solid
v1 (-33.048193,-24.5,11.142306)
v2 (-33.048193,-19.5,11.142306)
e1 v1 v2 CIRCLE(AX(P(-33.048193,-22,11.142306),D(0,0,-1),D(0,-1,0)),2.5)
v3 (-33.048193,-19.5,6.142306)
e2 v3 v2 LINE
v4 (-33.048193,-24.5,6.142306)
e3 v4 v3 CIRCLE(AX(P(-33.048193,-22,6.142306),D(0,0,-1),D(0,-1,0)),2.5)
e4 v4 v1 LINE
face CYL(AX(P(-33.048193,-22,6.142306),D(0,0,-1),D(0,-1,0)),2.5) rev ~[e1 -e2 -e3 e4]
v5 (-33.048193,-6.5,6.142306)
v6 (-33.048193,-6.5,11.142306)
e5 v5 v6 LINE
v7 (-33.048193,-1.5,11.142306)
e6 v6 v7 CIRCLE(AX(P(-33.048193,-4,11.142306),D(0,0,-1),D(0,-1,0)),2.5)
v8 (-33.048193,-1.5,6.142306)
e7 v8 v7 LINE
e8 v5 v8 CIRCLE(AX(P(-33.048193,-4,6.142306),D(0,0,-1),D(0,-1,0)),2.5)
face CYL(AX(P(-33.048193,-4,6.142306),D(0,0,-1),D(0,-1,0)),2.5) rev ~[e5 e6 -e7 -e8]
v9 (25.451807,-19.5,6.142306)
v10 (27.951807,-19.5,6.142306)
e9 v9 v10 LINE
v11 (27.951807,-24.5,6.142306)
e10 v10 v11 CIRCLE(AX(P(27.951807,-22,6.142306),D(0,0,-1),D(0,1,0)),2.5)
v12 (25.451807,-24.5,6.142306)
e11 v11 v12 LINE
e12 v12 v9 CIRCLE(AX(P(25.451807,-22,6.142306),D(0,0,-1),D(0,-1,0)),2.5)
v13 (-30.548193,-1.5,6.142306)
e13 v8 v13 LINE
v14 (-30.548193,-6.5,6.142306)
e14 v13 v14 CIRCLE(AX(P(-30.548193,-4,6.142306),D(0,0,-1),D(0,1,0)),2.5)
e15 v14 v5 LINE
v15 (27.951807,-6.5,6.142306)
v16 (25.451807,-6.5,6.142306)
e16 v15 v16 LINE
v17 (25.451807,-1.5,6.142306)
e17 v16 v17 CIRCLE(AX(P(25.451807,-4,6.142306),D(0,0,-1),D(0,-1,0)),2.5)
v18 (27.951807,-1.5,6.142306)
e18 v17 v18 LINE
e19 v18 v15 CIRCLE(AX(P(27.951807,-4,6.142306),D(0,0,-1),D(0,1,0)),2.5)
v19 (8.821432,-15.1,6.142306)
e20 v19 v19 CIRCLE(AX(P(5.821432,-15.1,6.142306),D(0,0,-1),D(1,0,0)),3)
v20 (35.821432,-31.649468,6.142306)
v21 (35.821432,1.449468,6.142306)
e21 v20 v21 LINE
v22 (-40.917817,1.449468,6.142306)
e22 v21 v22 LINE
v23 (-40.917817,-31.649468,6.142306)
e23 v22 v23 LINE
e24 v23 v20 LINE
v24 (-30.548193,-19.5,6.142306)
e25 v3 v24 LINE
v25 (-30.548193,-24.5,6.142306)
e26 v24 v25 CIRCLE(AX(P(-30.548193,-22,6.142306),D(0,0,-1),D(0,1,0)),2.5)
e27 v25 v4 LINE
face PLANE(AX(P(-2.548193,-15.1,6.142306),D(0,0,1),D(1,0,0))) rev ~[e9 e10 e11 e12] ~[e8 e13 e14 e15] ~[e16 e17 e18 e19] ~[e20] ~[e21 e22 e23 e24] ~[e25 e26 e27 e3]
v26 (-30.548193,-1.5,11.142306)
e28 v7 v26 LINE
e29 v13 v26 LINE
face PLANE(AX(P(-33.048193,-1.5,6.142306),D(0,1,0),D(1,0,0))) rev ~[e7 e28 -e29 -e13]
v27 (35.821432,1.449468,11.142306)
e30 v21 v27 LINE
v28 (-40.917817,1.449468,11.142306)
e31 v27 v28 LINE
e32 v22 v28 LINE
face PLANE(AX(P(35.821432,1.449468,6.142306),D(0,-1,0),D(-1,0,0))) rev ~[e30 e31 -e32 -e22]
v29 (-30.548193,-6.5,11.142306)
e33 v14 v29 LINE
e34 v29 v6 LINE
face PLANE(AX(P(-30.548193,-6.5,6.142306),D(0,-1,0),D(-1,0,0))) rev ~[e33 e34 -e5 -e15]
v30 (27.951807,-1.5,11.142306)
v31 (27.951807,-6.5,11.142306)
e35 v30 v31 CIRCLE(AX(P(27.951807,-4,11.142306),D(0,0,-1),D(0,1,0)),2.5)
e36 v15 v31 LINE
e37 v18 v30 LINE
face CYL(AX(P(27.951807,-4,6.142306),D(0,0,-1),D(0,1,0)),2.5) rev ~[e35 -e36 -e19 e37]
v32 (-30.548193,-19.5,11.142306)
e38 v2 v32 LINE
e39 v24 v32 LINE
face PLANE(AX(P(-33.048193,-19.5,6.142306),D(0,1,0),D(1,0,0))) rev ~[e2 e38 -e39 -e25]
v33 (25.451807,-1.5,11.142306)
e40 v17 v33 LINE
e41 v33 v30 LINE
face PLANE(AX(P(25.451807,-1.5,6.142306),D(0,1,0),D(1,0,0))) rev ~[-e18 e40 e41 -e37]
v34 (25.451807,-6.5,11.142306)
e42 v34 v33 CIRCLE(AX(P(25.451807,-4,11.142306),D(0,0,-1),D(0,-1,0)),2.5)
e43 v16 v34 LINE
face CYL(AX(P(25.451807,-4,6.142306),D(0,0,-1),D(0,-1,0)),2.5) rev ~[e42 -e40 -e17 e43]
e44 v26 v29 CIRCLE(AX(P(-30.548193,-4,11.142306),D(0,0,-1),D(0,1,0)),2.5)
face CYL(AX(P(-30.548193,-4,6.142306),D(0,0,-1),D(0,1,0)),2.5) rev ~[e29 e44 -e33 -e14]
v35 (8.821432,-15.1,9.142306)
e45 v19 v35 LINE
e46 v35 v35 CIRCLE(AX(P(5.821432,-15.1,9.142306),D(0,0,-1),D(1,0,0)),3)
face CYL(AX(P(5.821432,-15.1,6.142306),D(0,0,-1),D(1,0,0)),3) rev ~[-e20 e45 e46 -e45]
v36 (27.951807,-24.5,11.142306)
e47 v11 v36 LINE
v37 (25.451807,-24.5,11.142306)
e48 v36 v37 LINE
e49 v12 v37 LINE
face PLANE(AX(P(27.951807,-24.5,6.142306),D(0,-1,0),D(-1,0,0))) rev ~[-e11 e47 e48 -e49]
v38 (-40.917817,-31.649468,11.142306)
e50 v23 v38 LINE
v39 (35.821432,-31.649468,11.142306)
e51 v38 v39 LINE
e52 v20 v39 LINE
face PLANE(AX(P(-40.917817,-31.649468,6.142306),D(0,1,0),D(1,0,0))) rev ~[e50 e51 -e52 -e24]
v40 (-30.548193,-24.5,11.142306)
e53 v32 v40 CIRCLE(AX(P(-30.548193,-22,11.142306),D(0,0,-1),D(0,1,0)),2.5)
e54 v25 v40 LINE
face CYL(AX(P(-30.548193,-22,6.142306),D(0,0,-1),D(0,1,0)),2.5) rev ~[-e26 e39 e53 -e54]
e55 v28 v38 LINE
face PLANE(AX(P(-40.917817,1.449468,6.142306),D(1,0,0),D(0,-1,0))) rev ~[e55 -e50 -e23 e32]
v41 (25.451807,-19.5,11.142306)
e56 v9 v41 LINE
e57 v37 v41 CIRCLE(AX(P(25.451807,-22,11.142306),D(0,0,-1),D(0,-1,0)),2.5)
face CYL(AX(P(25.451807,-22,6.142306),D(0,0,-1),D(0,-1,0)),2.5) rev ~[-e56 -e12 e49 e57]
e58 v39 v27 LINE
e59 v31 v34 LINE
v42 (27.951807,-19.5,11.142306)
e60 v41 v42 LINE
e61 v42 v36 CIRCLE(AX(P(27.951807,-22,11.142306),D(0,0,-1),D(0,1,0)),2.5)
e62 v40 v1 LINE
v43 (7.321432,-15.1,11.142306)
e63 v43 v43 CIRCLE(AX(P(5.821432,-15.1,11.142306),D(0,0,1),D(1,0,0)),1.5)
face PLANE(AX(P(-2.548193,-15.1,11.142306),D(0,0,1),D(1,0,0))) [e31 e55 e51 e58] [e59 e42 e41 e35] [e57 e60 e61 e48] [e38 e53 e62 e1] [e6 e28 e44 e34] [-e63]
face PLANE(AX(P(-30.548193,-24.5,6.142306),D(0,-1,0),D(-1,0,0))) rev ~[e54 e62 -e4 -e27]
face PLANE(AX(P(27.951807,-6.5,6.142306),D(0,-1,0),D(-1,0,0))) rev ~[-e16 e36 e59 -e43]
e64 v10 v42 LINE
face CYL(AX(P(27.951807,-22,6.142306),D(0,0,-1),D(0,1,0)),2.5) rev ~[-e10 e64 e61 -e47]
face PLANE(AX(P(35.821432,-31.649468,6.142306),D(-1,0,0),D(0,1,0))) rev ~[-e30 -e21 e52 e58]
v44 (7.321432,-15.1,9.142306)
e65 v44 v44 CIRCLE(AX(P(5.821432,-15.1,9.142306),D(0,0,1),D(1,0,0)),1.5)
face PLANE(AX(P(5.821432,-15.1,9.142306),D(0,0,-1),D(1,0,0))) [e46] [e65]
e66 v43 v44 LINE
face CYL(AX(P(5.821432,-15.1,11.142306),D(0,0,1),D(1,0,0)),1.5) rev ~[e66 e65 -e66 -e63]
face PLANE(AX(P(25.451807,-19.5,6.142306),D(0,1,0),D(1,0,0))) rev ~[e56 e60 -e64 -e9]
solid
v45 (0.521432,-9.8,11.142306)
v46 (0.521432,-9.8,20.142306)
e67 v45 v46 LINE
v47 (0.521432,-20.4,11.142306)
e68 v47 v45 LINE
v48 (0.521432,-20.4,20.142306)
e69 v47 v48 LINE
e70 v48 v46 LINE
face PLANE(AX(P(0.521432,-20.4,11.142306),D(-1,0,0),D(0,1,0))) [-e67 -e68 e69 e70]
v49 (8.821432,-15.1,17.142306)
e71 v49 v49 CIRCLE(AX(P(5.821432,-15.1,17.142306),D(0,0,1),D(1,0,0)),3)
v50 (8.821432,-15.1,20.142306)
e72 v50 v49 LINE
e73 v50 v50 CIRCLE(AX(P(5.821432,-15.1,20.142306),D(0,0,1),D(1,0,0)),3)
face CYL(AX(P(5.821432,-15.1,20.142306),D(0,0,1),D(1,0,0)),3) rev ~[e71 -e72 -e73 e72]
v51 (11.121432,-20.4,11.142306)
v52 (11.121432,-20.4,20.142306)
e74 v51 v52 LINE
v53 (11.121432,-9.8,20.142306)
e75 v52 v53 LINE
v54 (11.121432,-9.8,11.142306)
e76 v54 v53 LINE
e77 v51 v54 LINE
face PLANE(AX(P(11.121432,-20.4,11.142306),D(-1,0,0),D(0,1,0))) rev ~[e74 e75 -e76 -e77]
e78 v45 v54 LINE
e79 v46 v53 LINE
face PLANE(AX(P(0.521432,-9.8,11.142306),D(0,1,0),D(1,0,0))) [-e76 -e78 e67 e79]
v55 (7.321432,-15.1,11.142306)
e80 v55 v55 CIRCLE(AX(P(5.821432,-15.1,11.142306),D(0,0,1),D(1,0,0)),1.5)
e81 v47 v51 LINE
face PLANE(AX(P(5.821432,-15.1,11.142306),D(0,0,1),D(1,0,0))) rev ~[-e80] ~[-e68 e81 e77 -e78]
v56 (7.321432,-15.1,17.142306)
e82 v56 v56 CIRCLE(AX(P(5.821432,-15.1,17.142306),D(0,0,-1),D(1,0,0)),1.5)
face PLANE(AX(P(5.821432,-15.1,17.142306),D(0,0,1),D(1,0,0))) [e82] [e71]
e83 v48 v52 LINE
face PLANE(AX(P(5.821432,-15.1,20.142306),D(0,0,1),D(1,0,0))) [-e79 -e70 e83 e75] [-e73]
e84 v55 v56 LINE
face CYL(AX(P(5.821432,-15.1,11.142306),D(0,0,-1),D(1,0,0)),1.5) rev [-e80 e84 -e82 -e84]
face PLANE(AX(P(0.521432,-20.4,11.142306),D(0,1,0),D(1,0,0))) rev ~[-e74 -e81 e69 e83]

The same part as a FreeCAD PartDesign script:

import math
import FreeCAD as App
import Part
import Sketcher
Q = App.Units.Quantity


def add_polygon(sketch, points):
    """Adds a closed chain of lines whose ends are joined by coincident constraints."""
    first, n = sketch.GeometryCount, len(points)
    for a, b in zip(points, points[1:] + points[:1]):
        sketch.addGeometry(Part.LineSegment(App.Vector(*a, 0), App.Vector(*b, 0)), False)
    for i in range(n):
        sketch.addConstraint(Sketcher.Constraint("Coincident", first + i, 2, first + (i + 1) % n, 1))

doc = App.newDocument("Part")
params = doc.addObject("Spreadsheet::Sheet", "Params")
for row, (alias, value) in enumerate([
    ("sketch1_diameter", "8 mm"),
    ("sketch1_width", "34 mm"),
    ("sketch1_height", "22 mm"),
    ("pad1_length", "30.2 mm"),
    ("sketch2_diameter", "8 mm"),
    ("sketch2_width", "34 mm"),
    ("sketch2_height", "22 mm"),
    ("pad2_length", "30.2 mm"),
    ("sketch3_radius", "2.5 mm"),
    ("sketch3_width", "2.5 mm"),
    ("pad3_length", "5 mm"),
    ("sketch4_diameter", "3 mm"),
    ("pocket1_length", "25 mm"),
    ("sketch5_diameter", "6 mm"),
    ("pocket2_length", "3 mm"),
    ("sketch6_diameter", "3 mm"),
    ("sketch6_width", "10.6 mm"),
    ("pad4_length", "9 mm"),
    ("sketch7_diameter", "6 mm"),
    ("pocket3_length", "3 mm"),
], start=1):
    params.set(f"A{row}", alias)
    params.set(f"B{row}", "=" + value)
    params.setAlias(f"B{row}", alias)

body = doc.addObject("PartDesign::Body", "Body")

sketch1 = body.newObject("Sketcher::SketchObject", "Sketch")
sketch1.AttachmentSupport = (doc.getObject("XZ_Plane"), [""])
sketch1.MapMode = "FlatFace"
add_polygon(sketch1, [(-36.1, 6.1), (-36.1, -15.9), (-2.1, -15.9), (-2.1, 6.1)])
sketch1.addGeometry(Part.Circle(App.Vector(-19.1, -4.9, 0), App.Vector(0, 0, 1), 4), False)
sketch1.addConstraint(Sketcher.Constraint("Vertical", 0))
sketch1.addConstraint(Sketcher.Constraint("Horizontal", 1))
sketch1.addConstraint(Sketcher.Constraint("Vertical", 2))
sketch1.addConstraint(Sketcher.Constraint("Horizontal", 3))
sketch1.addConstraint(Sketcher.Constraint("Diameter", 4, Q("8 mm")))
sketch1.addConstraint(Sketcher.Constraint("DistanceX", 1, 1, 1, 2, Q("34 mm")))
sketch1.addConstraint(Sketcher.Constraint("DistanceY", 0, 2, 0, 1, Q("22 mm")))
sketch1.addConstraint(Sketcher.Constraint("DistanceX", 0, 2, 4, 3, Q("17 mm")))
sketch1.addConstraint(Sketcher.Constraint("DistanceY", 0, 2, 4, 3, Q("11 mm")))
sketch1.addConstraint(Sketcher.Constraint("DistanceX", 4, 3, -1, 1, Q("19.066667 mm")))
sketch1.addConstraint(Sketcher.Constraint("DistanceY", 4, 3, -1, 1, Q("4.857694 mm")))
sketch1.setExpression("Constraints[8]", "Params.sketch1_diameter")
sketch1.setExpression("Constraints[9]", "Params.sketch1_width")
sketch1.setExpression("Constraints[10]", "Params.sketch1_height")
pad1 = body.newObject("PartDesign::Pad", "Pad")
pad1.Profile = sketch1
pad1.setExpression("Length", "Params.pad1_length")
body2 = doc.addObject("PartDesign::Body", "Body001")

sketch2 = body2.newObject("Sketcher::SketchObject", "Sketch001")
sketch2.AttachmentSupport = (doc.getObject("XZ_Plane001"), [""])
sketch2.MapMode = "FlatFace"
add_polygon(sketch2, [(0.7, 6.1), (0.7, -15.9), (34.7, -15.9), (34.7, 6.1)])
sketch2.addGeometry(Part.Circle(App.Vector(17.7, -4.9, 0), App.Vector(0, 0, 1), 4), False)
sketch2.addConstraint(Sketcher.Constraint("Vertical", 0))
sketch2.addConstraint(Sketcher.Constraint("Horizontal", 1))
sketch2.addConstraint(Sketcher.Constraint("Vertical", 2))
sketch2.addConstraint(Sketcher.Constraint("Horizontal", 3))
sketch2.addConstraint(Sketcher.Constraint("Diameter", 4, Q("8 mm")))
sketch2.addConstraint(Sketcher.Constraint("DistanceX", 1, 1, 1, 2, Q("34 mm")))
sketch2.addConstraint(Sketcher.Constraint("DistanceY", 0, 2, 0, 1, Q("22 mm")))
sketch2.addConstraint(Sketcher.Constraint("DistanceX", 0, 2, 4, 3, Q("17 mm")))
sketch2.addConstraint(Sketcher.Constraint("DistanceY", 0, 2, 4, 3, Q("11 mm")))
sketch2.addConstraint(Sketcher.Constraint("DistanceX", -1, 1, 4, 3, Q("17.733333 mm")))
sketch2.addConstraint(Sketcher.Constraint("DistanceY", 4, 3, -1, 1, Q("4.857694 mm")))
sketch2.setExpression("Constraints[8]", "Params.sketch2_diameter")
sketch2.setExpression("Constraints[9]", "Params.sketch2_width")
sketch2.setExpression("Constraints[10]", "Params.sketch2_height")
pad2 = body2.newObject("PartDesign::Pad", "Pad001")
pad2.Profile = sketch2
pad2.setExpression("Length", "Params.pad2_length")
body3 = doc.addObject("PartDesign::Body", "Body002")

sketch3 = body3.newObject("Sketcher::SketchObject", "Sketch002")
sketch3.AttachmentSupport = (doc.getObject("XY_Plane002"), [""])
sketch3.MapMode = "FlatFace"
sketch3.AttachmentOffset = App.Placement(App.Vector(0, 0, 6.142306), App.Rotation())
add_polygon(sketch3, [(-40.9, 1.4), (-40.9, -31.6), (35.8, -31.6), (35.8, 1.4)])
sketch3.addGeometry(Part.ArcOfCircle(Part.Circle(App.Vector(-30.5, -22, 0), App.Vector(0, 0, 1), 2.5), math.radians(-90), math.radians(90)), False)
sketch3.addGeometry(Part.LineSegment(App.Vector(-30.5, -24.5, 0), App.Vector(-33, -24.5, 0)), False)
sketch3.addGeometry(Part.ArcOfCircle(Part.Circle(App.Vector(-33, -22, 0), App.Vector(0, 0, 1), 2.5), math.radians(90), math.radians(270)), False)
sketch3.addGeometry(Part.LineSegment(App.Vector(-33, -19.5, 0), App.Vector(-30.5, -19.5, 0)), False)
sketch3.addGeometry(Part.LineSegment(App.Vector(25.5, -19.5, 0), App.Vector(28, -19.5, 0)), False)
sketch3.addGeometry(Part.ArcOfCircle(Part.Circle(App.Vector(28, -22, 0), App.Vector(0, 0, 1), 2.5), math.radians(-90), math.radians(90)), False)
sketch3.addGeometry(Part.LineSegment(App.Vector(28, -24.5, 0), App.Vector(25.5, -24.5, 0)), False)
sketch3.addGeometry(Part.ArcOfCircle(Part.Circle(App.Vector(25.5, -22, 0), App.Vector(0, 0, 1), 2.5), math.radians(90), math.radians(270)), False)
sketch3.addGeometry(Part.ArcOfCircle(Part.Circle(App.Vector(-30.5, -4, 0), App.Vector(0, 0, 1), 2.5), math.radians(-90), math.radians(90)), False)
sketch3.addGeometry(Part.LineSegment(App.Vector(-30.5, -6.5, 0), App.Vector(-33, -6.5, 0)), False)
sketch3.addGeometry(Part.ArcOfCircle(Part.Circle(App.Vector(-33, -4, 0), App.Vector(0, 0, 1), 2.5), math.radians(90), math.radians(270)), False)
sketch3.addGeometry(Part.LineSegment(App.Vector(-33, -1.5, 0), App.Vector(-30.5, -1.5, 0)), False)
sketch3.addGeometry(Part.ArcOfCircle(Part.Circle(App.Vector(25.5, -4, 0), App.Vector(0, 0, 1), 2.5), math.radians(90), math.radians(270)), False)
sketch3.addGeometry(Part.LineSegment(App.Vector(25.5, -1.5, 0), App.Vector(28, -1.5, 0)), False)
sketch3.addGeometry(Part.ArcOfCircle(Part.Circle(App.Vector(28, -4, 0), App.Vector(0, 0, 1), 2.5), math.radians(-90), math.radians(90)), False)
sketch3.addGeometry(Part.LineSegment(App.Vector(28, -6.5, 0), App.Vector(25.5, -6.5, 0)), False)
sketch3.addConstraint(Sketcher.Constraint("Tangent", 4, 1, 5, 1))
sketch3.addConstraint(Sketcher.Constraint("Tangent", 5, 2, 6, 2))
sketch3.addConstraint(Sketcher.Constraint("Tangent", 6, 1, 7, 1))
sketch3.addConstraint(Sketcher.Constraint("Tangent", 7, 2, 4, 2))
sketch3.addConstraint(Sketcher.Constraint("Tangent", 8, 2, 9, 2))
sketch3.addConstraint(Sketcher.Constraint("Tangent", 9, 1, 10, 1))
sketch3.addConstraint(Sketcher.Constraint("Tangent", 10, 2, 11, 2))
sketch3.addConstraint(Sketcher.Constraint("Tangent", 11, 1, 8, 1))
sketch3.addConstraint(Sketcher.Constraint("Tangent", 12, 1, 13, 1))
sketch3.addConstraint(Sketcher.Constraint("Tangent", 13, 2, 14, 2))
sketch3.addConstraint(Sketcher.Constraint("Tangent", 14, 1, 15, 1))
sketch3.addConstraint(Sketcher.Constraint("Tangent", 15, 2, 12, 2))
sketch3.addConstraint(Sketcher.Constraint("Tangent", 16, 1, 17, 1))
sketch3.addConstraint(Sketcher.Constraint("Tangent", 17, 2, 18, 2))
sketch3.addConstraint(Sketcher.Constraint("Tangent", 18, 1, 19, 1))
sketch3.addConstraint(Sketcher.Constraint("Tangent", 19, 2, 16, 2))
sketch3.addConstraint(Sketcher.Constraint("Vertical", 0))
sketch3.addConstraint(Sketcher.Constraint("Horizontal", 1))
sketch3.addConstraint(Sketcher.Constraint("Vertical", 2))
sketch3.addConstraint(Sketcher.Constraint("Horizontal", 3))
sketch3.addConstraint(Sketcher.Constraint("Horizontal", 5))
sketch3.addConstraint(Sketcher.Constraint("Horizontal", 7))
sketch3.addConstraint(Sketcher.Constraint("Horizontal", 8))
sketch3.addConstraint(Sketcher.Constraint("Horizontal", 10))
sketch3.addConstraint(Sketcher.Constraint("Horizontal", 13))
sketch3.addConstraint(Sketcher.Constraint("Horizontal", 15))
sketch3.addConstraint(Sketcher.Constraint("Horizontal", 17))
sketch3.addConstraint(Sketcher.Constraint("Horizontal", 19))
sketch3.addConstraint(Sketcher.Constraint("Equal", 6, 9))
sketch3.addConstraint(Sketcher.Constraint("Equal", 11, 12))
sketch3.addConstraint(Sketcher.Constraint("Equal", 14, 16))
sketch3.addConstraint(Sketcher.Constraint("Horizontal", 6, 3, 9, 3))
sketch3.addConstraint(Sketcher.Constraint("Horizontal", 14, 3, 16, 3))
sketch3.addConstraint(Sketcher.Constraint("Vertical", 4, 3, 12, 3))
sketch3.addConstraint(Sketcher.Constraint("Vertical", 6, 3, 14, 3))
sketch3.addConstraint(Sketcher.Constraint("Vertical", 11, 3, 16, 3))
sketch3.addConstraint(Sketcher.Constraint("Vertical", 9, 3, 18, 3))
sketch3.addConstraint(Sketcher.Constraint("Equal", 7, 8))
sketch3.addConstraint(Sketcher.Constraint("Radius", 4, Q("2.5 mm")))
sketch3.addConstraint(Sketcher.Constraint("DistanceX", 5, 2, 5, 1, Q("2.5 mm")))
sketch3.addConstraint(Sketcher.Constraint("DistanceY", 4, 3, -1, 1, Q("22 mm")))
sketch3.addConstraint(Sketcher.Constraint("DistanceY", 12, 3, -1, 1, Q("4 mm")))
sketch3.addConstraint(Sketcher.Constraint("DistanceX", 6, 3, 9, 3, Q("61 mm")))
sketch3.addConstraint(Sketcher.Constraint("DistanceX", 1, 1, 1, 2, Q("76.739249 mm")))
sketch3.addConstraint(Sketcher.Constraint("DistanceY", 0, 2, 0, 1, Q("33.098936 mm")))
sketch3.addConstraint(Sketcher.Constraint("DistanceY", 0, 2, -1, 1, Q("31.649468 mm")))
sketch3.addConstraint(Sketcher.Constraint("DistanceX", -1, 1, 1, 2, Q("35.821432 mm")))
sketch3.addConstraint(Sketcher.Constraint("DistanceX", 4, 3, -1, 1, Q("30.548193 mm")))
sketch3.setExpression("Constraints[42]", "Params.sketch3_radius")
sketch3.setExpression("Constraints[43]", "Params.sketch3_width")
pad3 = body3.newObject("PartDesign::Pad", "Pad002")
pad3.Profile = sketch3
pad3.setExpression("Length", "Params.pad3_length")

sketch4 = body3.newObject("Sketcher::SketchObject", "Sketch003")
sketch4.AttachmentSupport = (doc.getObject("XY_Plane002"), [""])
sketch4.MapMode = "FlatFace"
sketch4.AttachmentOffset = App.Placement(App.Vector(0, 0, 11.142306), App.Rotation())
sketch4.addGeometry(Part.Circle(App.Vector(5.8, -15.1, 0), App.Vector(0, 0, 1), 1.5), False)
sketch4.addConstraint(Sketcher.Constraint("Diameter", 0, Q("3 mm")))
sketch4.addConstraint(Sketcher.Constraint("DistanceY", 0, 3, -1, 1, Q("15.1 mm")))
sketch4.addConstraint(Sketcher.Constraint("DistanceX", -1, 1, 0, 3, Q("5.821432 mm")))
sketch4.setExpression("Constraints[0]", "Params.sketch4_diameter")
pocket1 = body3.newObject("PartDesign::Pocket", "Pocket")
pocket1.Profile = sketch4
pocket1.setExpression("Length", "Params.pocket1_length")

sketch5 = body3.newObject("Sketcher::SketchObject", "Sketch004")
sketch5.AttachmentSupport = (doc.getObject("XY_Plane002"), [""])
sketch5.MapMode = "FlatFace"
sketch5.AttachmentOffset = App.Placement(App.Vector(0, 0, 6.142306), App.Rotation())
sketch5.addGeometry(Part.Circle(App.Vector(5.8, -15.1, 0), App.Vector(0, 0, 1), 3), False)
sketch5.addConstraint(Sketcher.Constraint("Diameter", 0, Q("6 mm")))
sketch5.addConstraint(Sketcher.Constraint("DistanceY", 0, 3, -1, 1, Q("15.1 mm")))
sketch5.addConstraint(Sketcher.Constraint("DistanceX", -1, 1, 0, 3, Q("5.821432 mm")))
sketch5.setExpression("Constraints[0]", "Params.sketch5_diameter")
pocket2 = body3.newObject("PartDesign::Pocket", "Pocket001")
pocket2.Profile = sketch5
pocket2.setExpression("Length", "Params.pocket2_length")
pocket2.Reversed = True
body4 = doc.addObject("PartDesign::Body", "Body003")

sketch6 = body4.newObject("Sketcher::SketchObject", "Sketch005")
sketch6.AttachmentSupport = (doc.getObject("XY_Plane003"), [""])
sketch6.MapMode = "FlatFace"
sketch6.AttachmentOffset = App.Placement(App.Vector(0, 0, 11.142306), App.Rotation())
add_polygon(sketch6, [(0.5, -9.8), (0.5, -20.4), (11.1, -20.4), (11.1, -9.8)])
sketch6.addGeometry(Part.Circle(App.Vector(5.8, -15.1, 0), App.Vector(0, 0, 1), 1.5), False)
sketch6.addConstraint(Sketcher.Constraint("Vertical", 0))
sketch6.addConstraint(Sketcher.Constraint("Horizontal", 1))
sketch6.addConstraint(Sketcher.Constraint("Vertical", 2))
sketch6.addConstraint(Sketcher.Constraint("Horizontal", 3))
sketch6.addConstraint(Sketcher.Constraint("Equal", 3, 0))
sketch6.addConstraint(Sketcher.Constraint("Diameter", 4, Q("3 mm")))
sketch6.addConstraint(Sketcher.Constraint("DistanceX", 1, 1, 1, 2, Q("10.6 mm")))
sketch6.addConstraint(Sketcher.Constraint("DistanceY", 4, 3, -1, 1, Q("15.1 mm")))
sketch6.addConstraint(Sketcher.Constraint("DistanceY", 0, 2, -1, 1, Q("20.4 mm")))
sketch6.addConstraint(Sketcher.Constraint("DistanceX", 0, 2, 4, 3, Q("5.3 mm")))
sketch6.addConstraint(Sketcher.Constraint("DistanceX", -1, 1, 4, 3, Q("5.821432 mm")))
sketch6.setExpression("Constraints[9]", "Params.sketch6_diameter")
sketch6.setExpression("Constraints[10]", "Params.sketch6_width")
pad4 = body4.newObject("PartDesign::Pad", "Pad003")
pad4.Profile = sketch6
pad4.setExpression("Length", "Params.pad4_length")

sketch7 = body4.newObject("Sketcher::SketchObject", "Sketch006")
sketch7.AttachmentSupport = (doc.getObject("XY_Plane003"), [""])
sketch7.MapMode = "FlatFace"
sketch7.AttachmentOffset = App.Placement(App.Vector(0, 0, 20.142306), App.Rotation())
sketch7.addGeometry(Part.Circle(App.Vector(5.8, -15.1, 0), App.Vector(0, 0, 1), 3), False)
sketch7.addConstraint(Sketcher.Constraint("Diameter", 0, Q("6 mm")))
sketch7.addConstraint(Sketcher.Constraint("DistanceY", 0, 3, -1, 1, Q("15.1 mm")))
sketch7.addConstraint(Sketcher.Constraint("DistanceX", -1, 1, 0, 3, Q("5.821432 mm")))
sketch7.setExpression("Constraints[0]", "Params.sketch7_diameter")
pocket3 = body4.newObject("PartDesign::Pocket", "Pocket002")
pocket3.Profile = sketch7
pocket3.setExpression("Length", "Params.pocket3_length")
body.Visibility = False
body2.Visibility = False

doc.recompute()
